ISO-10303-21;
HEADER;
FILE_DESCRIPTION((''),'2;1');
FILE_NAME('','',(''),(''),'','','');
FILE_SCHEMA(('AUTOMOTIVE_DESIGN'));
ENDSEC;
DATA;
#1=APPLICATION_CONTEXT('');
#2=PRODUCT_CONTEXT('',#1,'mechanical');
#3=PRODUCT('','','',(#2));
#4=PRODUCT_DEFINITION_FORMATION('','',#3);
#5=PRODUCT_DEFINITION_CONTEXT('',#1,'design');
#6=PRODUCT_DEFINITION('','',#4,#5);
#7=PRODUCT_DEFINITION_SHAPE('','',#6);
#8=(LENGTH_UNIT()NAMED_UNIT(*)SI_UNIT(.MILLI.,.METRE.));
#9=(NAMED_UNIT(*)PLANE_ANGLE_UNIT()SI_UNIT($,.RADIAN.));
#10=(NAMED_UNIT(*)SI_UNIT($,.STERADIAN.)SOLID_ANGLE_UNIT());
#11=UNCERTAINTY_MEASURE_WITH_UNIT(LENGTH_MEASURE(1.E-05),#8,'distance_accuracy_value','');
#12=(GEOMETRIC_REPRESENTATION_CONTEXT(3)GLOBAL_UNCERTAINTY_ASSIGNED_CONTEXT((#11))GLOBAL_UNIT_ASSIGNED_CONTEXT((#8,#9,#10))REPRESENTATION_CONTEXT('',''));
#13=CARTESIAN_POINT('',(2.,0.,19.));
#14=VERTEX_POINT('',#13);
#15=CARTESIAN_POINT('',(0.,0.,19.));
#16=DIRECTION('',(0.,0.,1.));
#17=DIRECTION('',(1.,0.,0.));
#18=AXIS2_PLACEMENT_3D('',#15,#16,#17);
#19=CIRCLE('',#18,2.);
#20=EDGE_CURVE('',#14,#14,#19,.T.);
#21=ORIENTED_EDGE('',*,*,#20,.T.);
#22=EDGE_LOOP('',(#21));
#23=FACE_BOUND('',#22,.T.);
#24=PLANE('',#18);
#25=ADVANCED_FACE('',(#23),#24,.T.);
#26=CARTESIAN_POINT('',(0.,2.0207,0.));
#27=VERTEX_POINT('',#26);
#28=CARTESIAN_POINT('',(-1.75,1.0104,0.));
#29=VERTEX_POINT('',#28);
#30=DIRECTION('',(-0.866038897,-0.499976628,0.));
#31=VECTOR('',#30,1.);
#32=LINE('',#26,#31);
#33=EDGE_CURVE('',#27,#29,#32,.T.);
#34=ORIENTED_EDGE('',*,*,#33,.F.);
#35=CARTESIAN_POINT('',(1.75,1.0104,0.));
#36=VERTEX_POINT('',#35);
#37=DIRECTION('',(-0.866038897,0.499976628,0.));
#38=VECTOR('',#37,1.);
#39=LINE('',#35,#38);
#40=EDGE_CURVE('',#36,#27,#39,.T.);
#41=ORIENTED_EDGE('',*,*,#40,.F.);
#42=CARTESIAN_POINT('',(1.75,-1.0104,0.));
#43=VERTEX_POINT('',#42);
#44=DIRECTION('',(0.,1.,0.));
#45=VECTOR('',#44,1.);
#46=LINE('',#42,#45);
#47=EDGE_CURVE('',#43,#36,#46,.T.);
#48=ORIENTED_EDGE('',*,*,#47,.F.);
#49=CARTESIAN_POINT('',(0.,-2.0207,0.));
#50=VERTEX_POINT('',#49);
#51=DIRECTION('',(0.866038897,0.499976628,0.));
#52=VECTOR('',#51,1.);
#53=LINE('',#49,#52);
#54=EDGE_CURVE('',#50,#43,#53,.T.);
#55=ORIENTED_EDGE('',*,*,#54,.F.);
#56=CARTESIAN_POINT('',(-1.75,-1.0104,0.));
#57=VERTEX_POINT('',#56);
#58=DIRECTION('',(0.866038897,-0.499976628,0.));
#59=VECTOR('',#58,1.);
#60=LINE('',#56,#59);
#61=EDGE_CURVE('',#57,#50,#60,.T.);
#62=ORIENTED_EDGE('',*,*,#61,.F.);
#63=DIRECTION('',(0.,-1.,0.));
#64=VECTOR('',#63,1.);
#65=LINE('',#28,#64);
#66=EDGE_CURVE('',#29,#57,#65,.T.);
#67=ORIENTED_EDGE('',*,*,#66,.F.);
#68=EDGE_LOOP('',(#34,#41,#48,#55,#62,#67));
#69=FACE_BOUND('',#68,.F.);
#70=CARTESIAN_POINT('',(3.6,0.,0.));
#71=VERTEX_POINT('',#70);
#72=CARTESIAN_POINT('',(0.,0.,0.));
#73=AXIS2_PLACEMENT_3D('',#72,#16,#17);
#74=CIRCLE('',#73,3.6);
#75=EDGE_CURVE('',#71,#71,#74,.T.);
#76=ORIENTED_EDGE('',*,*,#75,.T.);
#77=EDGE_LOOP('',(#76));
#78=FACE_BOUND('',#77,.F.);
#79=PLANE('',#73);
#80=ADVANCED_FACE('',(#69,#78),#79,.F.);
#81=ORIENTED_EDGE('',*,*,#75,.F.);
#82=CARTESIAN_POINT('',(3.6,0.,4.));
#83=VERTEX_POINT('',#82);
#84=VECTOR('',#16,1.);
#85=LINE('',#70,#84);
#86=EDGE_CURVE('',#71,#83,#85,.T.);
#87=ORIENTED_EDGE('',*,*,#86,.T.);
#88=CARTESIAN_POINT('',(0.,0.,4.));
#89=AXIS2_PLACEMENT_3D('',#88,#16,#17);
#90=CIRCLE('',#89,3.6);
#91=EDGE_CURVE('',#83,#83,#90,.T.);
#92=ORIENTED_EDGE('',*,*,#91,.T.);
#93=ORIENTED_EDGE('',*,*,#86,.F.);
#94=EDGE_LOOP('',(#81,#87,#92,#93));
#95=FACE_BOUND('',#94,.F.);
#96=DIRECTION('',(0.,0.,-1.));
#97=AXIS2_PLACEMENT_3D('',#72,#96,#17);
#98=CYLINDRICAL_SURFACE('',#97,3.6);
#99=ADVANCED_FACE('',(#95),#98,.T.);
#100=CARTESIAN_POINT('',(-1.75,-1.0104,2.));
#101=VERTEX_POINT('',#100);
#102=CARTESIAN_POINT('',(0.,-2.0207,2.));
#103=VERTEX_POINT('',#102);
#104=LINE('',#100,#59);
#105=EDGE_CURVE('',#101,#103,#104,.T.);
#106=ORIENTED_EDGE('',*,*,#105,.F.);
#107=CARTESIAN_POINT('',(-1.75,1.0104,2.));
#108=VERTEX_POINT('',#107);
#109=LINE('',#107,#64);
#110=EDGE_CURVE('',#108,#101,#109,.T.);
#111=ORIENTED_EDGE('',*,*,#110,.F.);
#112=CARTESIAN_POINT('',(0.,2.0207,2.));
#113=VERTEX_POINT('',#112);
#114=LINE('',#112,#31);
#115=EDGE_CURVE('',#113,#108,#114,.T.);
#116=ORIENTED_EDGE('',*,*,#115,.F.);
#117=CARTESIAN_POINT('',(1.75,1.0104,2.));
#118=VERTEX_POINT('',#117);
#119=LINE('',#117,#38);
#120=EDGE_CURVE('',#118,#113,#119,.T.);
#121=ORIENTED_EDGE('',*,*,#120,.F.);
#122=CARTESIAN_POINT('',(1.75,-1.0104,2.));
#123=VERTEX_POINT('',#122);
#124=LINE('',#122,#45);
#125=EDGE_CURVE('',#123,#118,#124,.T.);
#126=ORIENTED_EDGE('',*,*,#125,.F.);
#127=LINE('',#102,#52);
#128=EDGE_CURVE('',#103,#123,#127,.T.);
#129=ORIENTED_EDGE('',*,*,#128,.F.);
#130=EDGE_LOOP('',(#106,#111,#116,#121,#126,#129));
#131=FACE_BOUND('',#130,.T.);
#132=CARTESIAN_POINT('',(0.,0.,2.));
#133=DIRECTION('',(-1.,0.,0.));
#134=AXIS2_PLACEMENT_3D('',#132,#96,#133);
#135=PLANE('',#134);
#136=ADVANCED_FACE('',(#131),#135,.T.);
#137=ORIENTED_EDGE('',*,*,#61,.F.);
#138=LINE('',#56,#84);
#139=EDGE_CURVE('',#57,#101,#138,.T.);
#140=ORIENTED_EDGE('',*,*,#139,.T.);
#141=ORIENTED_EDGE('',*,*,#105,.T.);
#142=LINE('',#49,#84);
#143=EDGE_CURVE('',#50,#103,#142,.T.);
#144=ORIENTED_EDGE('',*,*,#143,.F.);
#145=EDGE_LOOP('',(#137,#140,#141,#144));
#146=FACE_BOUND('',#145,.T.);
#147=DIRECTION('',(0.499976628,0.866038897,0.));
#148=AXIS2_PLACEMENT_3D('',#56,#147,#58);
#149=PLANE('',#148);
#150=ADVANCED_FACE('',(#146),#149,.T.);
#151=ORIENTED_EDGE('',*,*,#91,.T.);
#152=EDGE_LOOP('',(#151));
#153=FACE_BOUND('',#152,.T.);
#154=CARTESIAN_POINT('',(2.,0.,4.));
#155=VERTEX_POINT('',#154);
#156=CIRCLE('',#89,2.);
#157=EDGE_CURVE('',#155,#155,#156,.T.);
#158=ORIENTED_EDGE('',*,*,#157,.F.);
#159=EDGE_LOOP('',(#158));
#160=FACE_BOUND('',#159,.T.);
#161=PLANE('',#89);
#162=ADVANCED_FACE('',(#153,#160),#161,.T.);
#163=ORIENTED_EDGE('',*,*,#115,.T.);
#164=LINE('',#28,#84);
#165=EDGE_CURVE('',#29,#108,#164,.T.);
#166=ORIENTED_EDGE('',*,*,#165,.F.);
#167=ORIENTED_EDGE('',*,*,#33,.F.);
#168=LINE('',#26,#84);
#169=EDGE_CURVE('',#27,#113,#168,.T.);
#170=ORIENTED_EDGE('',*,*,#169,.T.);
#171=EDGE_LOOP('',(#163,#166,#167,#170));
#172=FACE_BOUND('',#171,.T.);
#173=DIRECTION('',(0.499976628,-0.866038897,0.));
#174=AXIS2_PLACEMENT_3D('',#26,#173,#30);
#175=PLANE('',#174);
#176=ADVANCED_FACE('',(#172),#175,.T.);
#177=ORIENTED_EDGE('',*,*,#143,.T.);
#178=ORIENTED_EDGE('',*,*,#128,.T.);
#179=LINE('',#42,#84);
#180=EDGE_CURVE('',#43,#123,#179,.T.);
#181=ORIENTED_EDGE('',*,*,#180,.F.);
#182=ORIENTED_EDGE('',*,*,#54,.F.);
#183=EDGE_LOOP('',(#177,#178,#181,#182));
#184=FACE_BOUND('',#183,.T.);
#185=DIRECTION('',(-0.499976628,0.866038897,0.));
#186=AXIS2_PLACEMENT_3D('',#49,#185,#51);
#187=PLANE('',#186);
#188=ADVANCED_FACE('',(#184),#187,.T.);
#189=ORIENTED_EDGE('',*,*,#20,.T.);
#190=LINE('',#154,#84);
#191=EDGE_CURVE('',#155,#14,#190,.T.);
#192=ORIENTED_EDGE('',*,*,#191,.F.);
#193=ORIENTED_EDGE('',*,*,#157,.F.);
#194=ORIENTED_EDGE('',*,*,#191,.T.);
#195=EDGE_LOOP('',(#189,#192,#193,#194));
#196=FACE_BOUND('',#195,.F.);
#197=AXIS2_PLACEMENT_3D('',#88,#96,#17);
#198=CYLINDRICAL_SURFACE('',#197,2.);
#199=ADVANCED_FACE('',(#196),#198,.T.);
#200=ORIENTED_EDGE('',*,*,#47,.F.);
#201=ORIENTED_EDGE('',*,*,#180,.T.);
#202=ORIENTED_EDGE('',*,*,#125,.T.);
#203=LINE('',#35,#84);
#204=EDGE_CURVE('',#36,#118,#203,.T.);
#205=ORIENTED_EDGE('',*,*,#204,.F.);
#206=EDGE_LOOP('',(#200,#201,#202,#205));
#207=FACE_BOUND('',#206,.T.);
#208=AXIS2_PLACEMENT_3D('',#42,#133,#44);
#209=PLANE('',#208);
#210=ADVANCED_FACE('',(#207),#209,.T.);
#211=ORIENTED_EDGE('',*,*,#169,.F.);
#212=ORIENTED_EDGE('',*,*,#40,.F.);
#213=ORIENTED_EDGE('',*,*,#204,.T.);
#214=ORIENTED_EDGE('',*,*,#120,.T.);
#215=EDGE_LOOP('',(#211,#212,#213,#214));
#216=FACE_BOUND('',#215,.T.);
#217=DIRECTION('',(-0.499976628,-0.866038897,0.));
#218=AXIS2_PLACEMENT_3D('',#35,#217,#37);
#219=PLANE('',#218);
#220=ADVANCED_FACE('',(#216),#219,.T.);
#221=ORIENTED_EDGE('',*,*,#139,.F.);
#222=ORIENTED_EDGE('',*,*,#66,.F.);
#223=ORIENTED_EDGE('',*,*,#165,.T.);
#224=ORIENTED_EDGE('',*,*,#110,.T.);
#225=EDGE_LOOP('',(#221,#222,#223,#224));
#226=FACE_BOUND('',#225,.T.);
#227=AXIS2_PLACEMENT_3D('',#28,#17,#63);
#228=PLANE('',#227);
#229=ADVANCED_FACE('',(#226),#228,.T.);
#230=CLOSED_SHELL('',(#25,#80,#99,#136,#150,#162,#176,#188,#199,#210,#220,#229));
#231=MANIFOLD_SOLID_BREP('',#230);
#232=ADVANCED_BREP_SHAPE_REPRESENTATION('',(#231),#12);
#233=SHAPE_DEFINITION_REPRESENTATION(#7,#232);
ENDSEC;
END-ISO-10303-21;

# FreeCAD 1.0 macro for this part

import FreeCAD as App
import Part
import Sketcher
from FreeCAD import Vector

doc = App.newDocument("Part")
params = doc.addObject("Spreadsheet::Sheet", "Params")
for row, (alias, value) in enumerate([
    ("sketch1_diameter", "7.2 mm"),
    ("pad1_length", "4 mm"),
    ("sketch2_diameter", "4 mm"),
    ("pad2_length", "15 mm"),
    ("pocket1_length", "2 mm"),
], start=1):
    params.set(f"A{row}", alias)
    params.set(f"B{row}", "=" + value)
    params.setAlias(f"B{row}", alias)

body = doc.addObject("PartDesign::Body", "Body")

sketch1 = doc.addObject("Sketcher::SketchObject", "Sketch")
body.addObject(sketch1)
sketch1.AttachmentSupport = (doc.XY_Plane, [""])
sketch1.MapMode = "FlatFace"
sketch1.addGeometry(Part.Circle(Vector(0, 0, 0), Vector(0, 0, 1), 3.6), False)
sketch1.addConstraint([
    Sketcher.Constraint("Coincident", 0, 3, -1, 1),
    Sketcher.Constraint("Diameter", 0, 7.2),
])
sketch1.setExpression("Constraints[1]", "Params.sketch1_diameter")
pad1 = doc.addObject("PartDesign::Pad", "Pad")
body.addObject(pad1)
pad1.Profile = sketch1
pad1.setExpression("Length", "Params.pad1_length")

sketch2 = doc.addObject("Sketcher::SketchObject", "Sketch001")
body.addObject(sketch2)
sketch2.AttachmentSupport = (doc.XY_Plane, [""])
sketch2.MapMode = "FlatFace"
sketch2.AttachmentOffset = App.Placement(Vector(0, 0, 4), App.Rotation())
sketch2.addGeometry(Part.Circle(Vector(0, 0, 0), Vector(0, 0, 1), 2), False)
sketch2.addConstraint([
    Sketcher.Constraint("Coincident", 0, 3, -1, 1),
    Sketcher.Constraint("Diameter", 0, 4.0),
])
sketch2.setExpression("Constraints[1]", "Params.sketch2_diameter")
pad2 = doc.addObject("PartDesign::Pad", "Pad001")
body.addObject(pad2)
pad2.Profile = sketch2
pad2.setExpression("Length", "Params.pad2_length")

sketch3 = doc.addObject("Sketcher::SketchObject", "Sketch002")
body.addObject(sketch3)
sketch3.AttachmentSupport = (doc.XY_Plane, [""])
sketch3.MapMode = "FlatFace"
sketch3.addGeometry([
    Part.LineSegment(Vector(1.8, -1, 0), Vector(0, -2, 0)),
    Part.LineSegment(Vector(0, -2, 0), Vector(-1.8, -1, 0)),
    Part.LineSegment(Vector(-1.8, -1, 0), Vector(-1.8, 1, 0)),
    Part.LineSegment(Vector(-1.8, 1, 0), Vector(0, 2, 0)),
    Part.LineSegment(Vector(0, 2, 0), Vector(1.8, 1, 0)),
    Part.LineSegment(Vector(1.8, 1, 0), Vector(1.8, -1, 0)),
], False)
sketch3.addConstraint([
    Sketcher.Constraint("Coincident", 0, 2, 1, 1),
    Sketcher.Constraint("Coincident", 1, 2, 2, 1),
    Sketcher.Constraint("Coincident", 2, 2, 3, 1),
    Sketcher.Constraint("Coincident", 3, 2, 4, 1),
    Sketcher.Constraint("Coincident", 4, 2, 5, 1),
    Sketcher.Constraint("Coincident", 5, 2, 0, 1),
    Sketcher.Constraint("Vertical", 2),
    Sketcher.Constraint("Vertical", 5),
    Sketcher.Constraint("Symmetric", 0, 2, 3, 2, -1, 1),
    Sketcher.Constraint("Symmetric", 1, 2, 4, 2, -1, 1),
    Sketcher.Constraint("PointOnObject", 0, 2, -2),
    Sketcher.Constraint("Parallel", 0, 3),
    Sketcher.Constraint("Horizontal", 2, 2, 4, 2),
    Sketcher.Constraint("DistanceX", 2, 2, 4, 2, 3.5),
    Sketcher.Constraint("DistanceY", 2, 1, 2, 2, 2.0208),
    Sketcher.Constraint("DistanceY", 0, 2, 2, 2, 3.031),
])
pocket1 = doc.addObject("PartDesign::Pocket", "Pocket")
body.addObject(pocket1)
pocket1.Profile = sketch3
pocket1.setExpression("Length", "Params.pocket1_length")
pocket1.Reversed = True

doc.recompute()
